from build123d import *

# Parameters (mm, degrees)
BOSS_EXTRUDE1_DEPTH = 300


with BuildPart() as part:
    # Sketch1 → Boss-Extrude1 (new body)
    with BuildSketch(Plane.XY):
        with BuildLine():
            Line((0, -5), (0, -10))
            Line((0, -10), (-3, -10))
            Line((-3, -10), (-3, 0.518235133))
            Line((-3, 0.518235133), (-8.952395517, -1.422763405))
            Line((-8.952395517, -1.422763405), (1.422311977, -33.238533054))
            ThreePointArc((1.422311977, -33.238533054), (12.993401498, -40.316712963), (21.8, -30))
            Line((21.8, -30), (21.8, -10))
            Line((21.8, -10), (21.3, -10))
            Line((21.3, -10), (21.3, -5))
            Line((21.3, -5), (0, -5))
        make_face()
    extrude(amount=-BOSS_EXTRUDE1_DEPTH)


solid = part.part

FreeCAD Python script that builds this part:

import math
import FreeCAD as App
import Part
import Sketcher
from FreeCAD import Vector

doc = App.newDocument("Part")
body = doc.addObject("PartDesign::Body", "Body")

# Sketch on XY plane
sketch1 = doc.addObject("Sketcher::SketchObject", "Sketch")
body.addObject(sketch1)
sketch1.AttachmentSupport = (doc.XY_Plane, [""])
sketch1.MapMode = "FlatFace"
sketch1.addGeometry([
    Part.LineSegment(Vector(0, -5, 0), Vector(0, -10, 0)),  # 0
    Part.LineSegment(Vector(0, -10, 0), Vector(-3, -10, 0)),  # 1
    Part.LineSegment(Vector(-3, -10, 0), Vector(-3, 0.518235, 0)),  # 2
    Part.LineSegment(Vector(-3, 0.518235, 0), Vector(-8.952396, -1.422763, 0)),  # 3
    Part.LineSegment(Vector(-8.952396, -1.422763, 0), Vector(1.422312, -33.238533, 0)),  # 4
    Part.ArcOfCircle(Part.Circle(Vector(11.353813, -30, 0), Vector(0, 0, 1), 10.446187), math.radians(-161.939528), math.radians(0)),  # 5
    Part.LineSegment(Vector(21.8, -30, 0), Vector(21.8, -10, 0)),  # 6
    Part.LineSegment(Vector(21.8, -10, 0), Vector(21.3, -10, 0)),  # 7
    Part.LineSegment(Vector(21.3, -10, 0), Vector(21.3, -5, 0)),  # 8
    Part.LineSegment(Vector(21.3, -5, 0), Vector(0, -5, 0)),  # 9
], False)
sketch1.addConstraint([
    Sketcher.Constraint("Coincident", 0, 2, 1, 1),
    Sketcher.Constraint("Coincident", 1, 2, 2, 1),
    Sketcher.Constraint("Coincident", 2, 2, 3, 1),
    Sketcher.Constraint("Coincident", 3, 2, 4, 1),
    Sketcher.Constraint("Coincident", 4, 2, 5, 1),
    Sketcher.Constraint("Coincident", 5, 2, 6, 1),
    Sketcher.Constraint("Coincident", 6, 2, 7, 1),
    Sketcher.Constraint("Coincident", 7, 2, 8, 1),
    Sketcher.Constraint("Coincident", 8, 2, 9, 1),
    Sketcher.Constraint("Coincident", 9, 2, 0, 1),
    Sketcher.Constraint("Vertical", 0),
    Sketcher.Constraint("Horizontal", 1),
    Sketcher.Constraint("Vertical", 2),
    Sketcher.Constraint("Vertical", 6),
    Sketcher.Constraint("Horizontal", 7),
    Sketcher.Constraint("Vertical", 8),
    Sketcher.Constraint("Horizontal", 9),
    Sketcher.Constraint("PointOnObject", 0, 2, -2),
    Sketcher.Constraint("DistanceX", 1, 2, 1, 1, 3.0),
    Sketcher.Constraint("DistanceY", 0, 2, 0, 1, 5.0),
    Sketcher.Constraint("DistanceY", 6, 1, 6, 2, 20.0),
    Sketcher.Constraint("DistanceY", 8, 1, 8, 2, 5.0),
    Sketcher.Constraint("DistanceX", 7, 2, 7, 1, 0.5),
    Sketcher.Constraint("DistanceX", 9, 2, 9, 1, 21.3),
    Sketcher.Constraint("DistanceY", 5, 3, -1, 1, 30.0),
    Sketcher.Constraint("DistanceY", 0, 2, -1, 1, 10.0),
    Sketcher.Constraint("Radius", 5, 10.446187),
    Sketcher.Constraint("DistanceY", 3, 2, 2, 2, 1.940999),
    Sketcher.Constraint("DistanceX", 4, 2, 5, 3, 9.931501),
    Sketcher.Constraint("Distance", 3, 6.26087),
    Sketcher.Constraint("DistanceY", 2, 1, 2, 2, 10.518235),
])
pad1 = doc.addObject("PartDesign::Pad", "Pad")
body.addObject(pad1)
pad1.Profile = sketch1
pad1.Length = 300
pad1.Reversed = True

doc.recompute()
